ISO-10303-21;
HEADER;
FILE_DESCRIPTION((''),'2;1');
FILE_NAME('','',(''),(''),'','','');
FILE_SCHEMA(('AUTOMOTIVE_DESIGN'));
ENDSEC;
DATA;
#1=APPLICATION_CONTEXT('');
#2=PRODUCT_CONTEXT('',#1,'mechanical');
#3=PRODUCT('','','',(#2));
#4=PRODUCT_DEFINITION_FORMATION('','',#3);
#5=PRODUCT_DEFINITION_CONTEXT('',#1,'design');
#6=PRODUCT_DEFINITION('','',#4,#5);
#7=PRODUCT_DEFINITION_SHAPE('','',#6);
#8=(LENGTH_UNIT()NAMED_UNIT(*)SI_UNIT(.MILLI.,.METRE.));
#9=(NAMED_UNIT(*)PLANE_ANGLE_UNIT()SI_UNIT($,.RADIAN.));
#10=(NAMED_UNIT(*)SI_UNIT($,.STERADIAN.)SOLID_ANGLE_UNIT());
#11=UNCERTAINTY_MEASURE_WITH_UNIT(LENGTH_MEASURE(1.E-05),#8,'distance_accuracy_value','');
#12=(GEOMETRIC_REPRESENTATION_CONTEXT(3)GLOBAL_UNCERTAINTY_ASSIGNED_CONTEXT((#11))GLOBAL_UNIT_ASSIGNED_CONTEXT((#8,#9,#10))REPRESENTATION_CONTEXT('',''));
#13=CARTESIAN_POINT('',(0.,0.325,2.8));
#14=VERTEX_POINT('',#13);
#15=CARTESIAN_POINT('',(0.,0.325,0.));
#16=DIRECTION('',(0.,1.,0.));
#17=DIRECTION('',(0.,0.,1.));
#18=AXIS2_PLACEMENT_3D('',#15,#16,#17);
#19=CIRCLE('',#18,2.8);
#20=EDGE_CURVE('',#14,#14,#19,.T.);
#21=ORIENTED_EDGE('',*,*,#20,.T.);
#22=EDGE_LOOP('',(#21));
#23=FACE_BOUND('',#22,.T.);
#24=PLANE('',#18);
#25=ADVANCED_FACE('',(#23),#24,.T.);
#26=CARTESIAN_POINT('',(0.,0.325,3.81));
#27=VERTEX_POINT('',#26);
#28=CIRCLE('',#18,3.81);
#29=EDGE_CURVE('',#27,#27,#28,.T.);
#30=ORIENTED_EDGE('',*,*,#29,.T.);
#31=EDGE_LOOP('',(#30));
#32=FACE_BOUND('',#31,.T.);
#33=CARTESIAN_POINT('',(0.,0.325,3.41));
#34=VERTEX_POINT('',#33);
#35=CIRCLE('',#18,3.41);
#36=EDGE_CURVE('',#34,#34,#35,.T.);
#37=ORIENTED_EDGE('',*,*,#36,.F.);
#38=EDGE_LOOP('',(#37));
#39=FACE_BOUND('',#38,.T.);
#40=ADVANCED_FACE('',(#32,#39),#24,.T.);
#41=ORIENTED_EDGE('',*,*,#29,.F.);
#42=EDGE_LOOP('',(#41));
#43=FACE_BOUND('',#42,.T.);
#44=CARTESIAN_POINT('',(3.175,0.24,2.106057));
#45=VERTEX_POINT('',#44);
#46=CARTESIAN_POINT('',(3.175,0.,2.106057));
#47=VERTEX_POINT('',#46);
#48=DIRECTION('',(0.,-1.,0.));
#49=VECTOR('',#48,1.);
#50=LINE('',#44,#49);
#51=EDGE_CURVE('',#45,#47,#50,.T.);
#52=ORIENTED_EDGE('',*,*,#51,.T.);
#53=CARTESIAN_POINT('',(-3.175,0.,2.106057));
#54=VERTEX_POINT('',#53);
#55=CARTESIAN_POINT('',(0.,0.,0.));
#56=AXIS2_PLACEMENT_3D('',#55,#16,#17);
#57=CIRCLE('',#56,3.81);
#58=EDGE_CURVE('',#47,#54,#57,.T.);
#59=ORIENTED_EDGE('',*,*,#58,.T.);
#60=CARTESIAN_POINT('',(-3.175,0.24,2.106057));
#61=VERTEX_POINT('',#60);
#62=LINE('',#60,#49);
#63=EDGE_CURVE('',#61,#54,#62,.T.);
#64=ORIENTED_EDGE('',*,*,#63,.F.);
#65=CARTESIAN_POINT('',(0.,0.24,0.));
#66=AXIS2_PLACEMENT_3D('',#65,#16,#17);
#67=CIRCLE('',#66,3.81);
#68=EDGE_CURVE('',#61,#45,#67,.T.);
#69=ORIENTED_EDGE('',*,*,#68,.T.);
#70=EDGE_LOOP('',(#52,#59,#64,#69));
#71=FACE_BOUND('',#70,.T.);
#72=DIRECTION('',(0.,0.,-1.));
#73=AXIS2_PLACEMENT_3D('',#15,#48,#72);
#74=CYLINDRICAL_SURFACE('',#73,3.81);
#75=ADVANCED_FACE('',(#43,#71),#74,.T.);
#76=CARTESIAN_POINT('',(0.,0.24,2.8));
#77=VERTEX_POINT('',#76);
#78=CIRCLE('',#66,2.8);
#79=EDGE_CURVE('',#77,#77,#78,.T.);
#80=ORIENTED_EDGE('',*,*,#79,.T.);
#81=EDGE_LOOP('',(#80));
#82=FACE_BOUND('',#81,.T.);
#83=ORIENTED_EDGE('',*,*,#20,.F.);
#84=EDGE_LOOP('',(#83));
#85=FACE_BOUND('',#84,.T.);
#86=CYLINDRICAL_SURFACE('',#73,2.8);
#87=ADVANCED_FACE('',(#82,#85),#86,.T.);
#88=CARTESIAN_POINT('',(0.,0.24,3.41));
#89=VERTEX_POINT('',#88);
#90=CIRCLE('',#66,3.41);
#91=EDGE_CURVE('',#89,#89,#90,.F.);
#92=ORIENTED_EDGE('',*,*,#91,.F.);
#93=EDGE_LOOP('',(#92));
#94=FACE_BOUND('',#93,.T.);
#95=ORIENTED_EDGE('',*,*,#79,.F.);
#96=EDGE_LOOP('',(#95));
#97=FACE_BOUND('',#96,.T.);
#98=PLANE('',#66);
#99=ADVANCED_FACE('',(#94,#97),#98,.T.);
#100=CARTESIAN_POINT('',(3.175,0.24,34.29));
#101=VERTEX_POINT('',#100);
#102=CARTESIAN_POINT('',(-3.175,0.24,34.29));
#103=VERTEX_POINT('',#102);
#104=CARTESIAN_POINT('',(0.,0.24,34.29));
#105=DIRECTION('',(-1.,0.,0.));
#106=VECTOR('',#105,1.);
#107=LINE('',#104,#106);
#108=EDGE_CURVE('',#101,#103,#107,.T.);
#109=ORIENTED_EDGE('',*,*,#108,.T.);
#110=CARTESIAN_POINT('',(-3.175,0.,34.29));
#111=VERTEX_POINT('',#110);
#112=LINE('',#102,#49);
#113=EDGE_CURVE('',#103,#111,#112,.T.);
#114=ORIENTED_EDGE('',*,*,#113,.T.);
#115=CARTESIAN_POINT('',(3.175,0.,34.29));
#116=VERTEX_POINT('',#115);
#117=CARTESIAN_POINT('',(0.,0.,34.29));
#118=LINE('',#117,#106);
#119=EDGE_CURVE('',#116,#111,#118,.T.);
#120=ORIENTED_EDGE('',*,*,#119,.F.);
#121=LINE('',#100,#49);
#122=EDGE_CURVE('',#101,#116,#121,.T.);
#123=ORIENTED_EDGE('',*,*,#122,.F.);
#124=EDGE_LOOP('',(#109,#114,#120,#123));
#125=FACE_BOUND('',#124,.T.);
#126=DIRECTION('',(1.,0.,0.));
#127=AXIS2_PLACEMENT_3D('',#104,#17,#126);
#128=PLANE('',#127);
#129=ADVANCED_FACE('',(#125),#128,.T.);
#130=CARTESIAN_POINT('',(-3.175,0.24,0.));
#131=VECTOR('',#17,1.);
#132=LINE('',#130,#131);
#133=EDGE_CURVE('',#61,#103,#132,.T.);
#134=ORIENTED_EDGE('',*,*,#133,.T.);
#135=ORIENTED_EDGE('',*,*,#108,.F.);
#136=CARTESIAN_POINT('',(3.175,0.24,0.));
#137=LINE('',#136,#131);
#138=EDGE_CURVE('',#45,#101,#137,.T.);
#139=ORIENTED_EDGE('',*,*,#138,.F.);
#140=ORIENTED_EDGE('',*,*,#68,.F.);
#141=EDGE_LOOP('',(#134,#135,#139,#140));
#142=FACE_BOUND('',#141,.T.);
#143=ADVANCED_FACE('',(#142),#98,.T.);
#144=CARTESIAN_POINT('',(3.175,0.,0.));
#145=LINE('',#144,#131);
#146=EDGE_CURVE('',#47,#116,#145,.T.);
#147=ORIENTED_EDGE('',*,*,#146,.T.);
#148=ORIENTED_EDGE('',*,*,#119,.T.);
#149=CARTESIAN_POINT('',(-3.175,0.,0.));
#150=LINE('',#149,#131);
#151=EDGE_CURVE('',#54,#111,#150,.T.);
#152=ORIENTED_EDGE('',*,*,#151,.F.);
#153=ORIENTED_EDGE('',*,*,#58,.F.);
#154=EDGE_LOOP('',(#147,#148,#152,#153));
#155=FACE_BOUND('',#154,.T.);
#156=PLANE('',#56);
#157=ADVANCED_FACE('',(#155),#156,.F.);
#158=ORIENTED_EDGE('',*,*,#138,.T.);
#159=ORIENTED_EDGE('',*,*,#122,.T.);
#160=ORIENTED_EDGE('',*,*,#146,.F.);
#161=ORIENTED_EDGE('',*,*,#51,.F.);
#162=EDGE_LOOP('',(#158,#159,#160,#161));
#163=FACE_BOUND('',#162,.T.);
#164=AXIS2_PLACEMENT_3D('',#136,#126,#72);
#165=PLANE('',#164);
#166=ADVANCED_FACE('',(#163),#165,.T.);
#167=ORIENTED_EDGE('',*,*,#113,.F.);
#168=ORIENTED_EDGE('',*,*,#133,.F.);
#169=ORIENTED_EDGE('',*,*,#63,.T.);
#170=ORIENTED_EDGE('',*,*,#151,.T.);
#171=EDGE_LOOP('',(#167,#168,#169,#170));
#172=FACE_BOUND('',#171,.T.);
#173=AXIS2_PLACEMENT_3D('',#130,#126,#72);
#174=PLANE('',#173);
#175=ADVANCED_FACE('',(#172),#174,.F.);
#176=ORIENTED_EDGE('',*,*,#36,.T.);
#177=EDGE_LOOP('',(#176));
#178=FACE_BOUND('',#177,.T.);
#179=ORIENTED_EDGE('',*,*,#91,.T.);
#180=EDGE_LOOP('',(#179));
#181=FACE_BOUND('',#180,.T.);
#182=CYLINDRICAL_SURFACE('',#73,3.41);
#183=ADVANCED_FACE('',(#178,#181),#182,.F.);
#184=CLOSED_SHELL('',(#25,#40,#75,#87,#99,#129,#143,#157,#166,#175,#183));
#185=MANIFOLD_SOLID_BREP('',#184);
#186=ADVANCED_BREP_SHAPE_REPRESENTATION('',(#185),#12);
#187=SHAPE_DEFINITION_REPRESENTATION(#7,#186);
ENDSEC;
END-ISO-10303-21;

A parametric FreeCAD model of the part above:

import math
import FreeCAD as App
import Part
import Sketcher

V = App.Vector
Q = App.Units.Quantity

doc = App.newDocument("Part")
params = doc.addObject("Spreadsheet::Sheet", "Params")
for row, (alias, value) in enumerate([
    ("sketch1_diameter", "0.3 in"),
    ("pad1_length", "0.325 mm"),
    ("pad2_length", "0.325 mm"),
    ("sketch3_radius", "0.15 in"),
    ("sketch3_width", "0.25 in"),
    ("pad3_length", "0.24 mm"),
], start=1):
    params.set(f"A{row}", alias)
    params.set(f"B{row}", "=" + value)
    params.setAlias(f"B{row}", alias)

body = doc.addObject("PartDesign::Body", "Body")

sketch1 = body.newObject("Sketcher::SketchObject", "Sketch")
sketch1.AttachmentSupport = (doc.getObject("XZ_Plane"), [""])
sketch1.MapMode = "FlatFace"
sketch1.addGeometry([
    Part.Circle(V(0, 0, 0), V(0, 0, 1), 3.8),
    Part.Circle(V(0, 0, 0), V(0, 0, 1), 3.4),
], False)
sketch1.addConstraint([
    Sketcher.Constraint("Coincident", 0, 3, -1, 1),
    Sketcher.Constraint("Coincident", 1, 3, -1, 1),
    Sketcher.Constraint("Diameter", 0, Q("0.3 in")),
    Sketcher.Constraint("Diameter", 1, 6.82),
])
sketch1.setExpression("Constraints[2]", "Params.sketch1_diameter")
pad1 = body.newObject("PartDesign::Pad", "Pad")
pad1.Profile = sketch1
pad1.setExpression("Length", "Params.pad1_length")
pad1.Reversed = True
body2 = doc.addObject("PartDesign::Body", "Body001")

sketch2 = body2.newObject("Sketcher::SketchObject", "Sketch001")
sketch2.AttachmentSupport = (doc.getObject("XZ_Plane001"), [""])
sketch2.MapMode = "FlatFace"
sketch2.addGeometry(Part.Circle(V(0, 0, 0), V(0, 0, 1), 2.8), False)
sketch2.addConstraint([
    Sketcher.Constraint("Coincident", 0, 3, -1, 1),
    Sketcher.Constraint("Diameter", 0, 5.6),
])
pad2 = body2.newObject("PartDesign::Pad", "Pad001")
pad2.Profile = sketch2
pad2.setExpression("Length", "Params.pad2_length")
pad2.Reversed = True
body.AllowCompound = True
doc.recompute()

boolean = body.newObject("PartDesign::Boolean", "Boolean")
boolean.Type = "Fuse"
boolean.addObjects([body2])

sketch3 = body.newObject("Sketcher::SketchObject", "Sketch002")
sketch3.AttachmentSupport = (doc.getObject("XZ_Plane"), [""])
sketch3.MapMode = "FlatFace"
sketch3.addGeometry([
    Part.LineSegment(V(-3.2, 2.1, 0), V(-3.2, 34.3, 0)),
    Part.LineSegment(V(-3.2, 34.3, 0), V(3.2, 34.3, 0)),
    Part.LineSegment(V(3.2, 34.3, 0), V(3.2, 2.1, 0)),
    Part.ArcOfCircle(Part.Circle(V(0, 0, 0), V(0, 0, 1), 3.8), math.radians(34), math.radians(146)),
    Part.Circle(V(0, 0, 0), V(0, 0, 1), 3.4),
    Part.Circle(V(0, 0, 0), V(0, 0, 1), 2.8),
], False)
sketch3.addConstraint([
    Sketcher.Constraint("Coincident", 0, 2, 1, 1),
    Sketcher.Constraint("Coincident", 1, 2, 2, 1),
    Sketcher.Constraint("Coincident", 2, 2, 3, 1),
    Sketcher.Constraint("Coincident", 3, 2, 0, 1),
    Sketcher.Constraint("Vertical", 0),
    Sketcher.Constraint("Horizontal", 1),
    Sketcher.Constraint("Vertical", 2),
    Sketcher.Constraint("Coincident", 3, 3, -1, 1),
    Sketcher.Constraint("Coincident", 4, 3, -1, 1),
    Sketcher.Constraint("Coincident", 5, 3, -1, 1),
    Sketcher.Constraint("Horizontal", 2, 2, 3, 2),
    Sketcher.Constraint("Radius", 3, Q("0.15 in")),
    Sketcher.Constraint("DistanceX", 1, 1, 1, 2, Q("0.25 in")),
    Sketcher.Constraint("Diameter", 4, 6.82),
    Sketcher.Constraint("Diameter", 5, 5.6),
    Sketcher.Constraint("DistanceY", -1, 1, 0, 2, Q("1.35 in")),
])
sketch3.setExpression("Constraints[11]", "Params.sketch3_radius")
sketch3.setExpression("Constraints[12]", "Params.sketch3_width")
pad3 = body.newObject("PartDesign::Pad", "Pad002")
pad3.Profile = sketch3
pad3.setExpression("Length", "Params.pad3_length")
pad3.Reversed = True

doc.recompute()
